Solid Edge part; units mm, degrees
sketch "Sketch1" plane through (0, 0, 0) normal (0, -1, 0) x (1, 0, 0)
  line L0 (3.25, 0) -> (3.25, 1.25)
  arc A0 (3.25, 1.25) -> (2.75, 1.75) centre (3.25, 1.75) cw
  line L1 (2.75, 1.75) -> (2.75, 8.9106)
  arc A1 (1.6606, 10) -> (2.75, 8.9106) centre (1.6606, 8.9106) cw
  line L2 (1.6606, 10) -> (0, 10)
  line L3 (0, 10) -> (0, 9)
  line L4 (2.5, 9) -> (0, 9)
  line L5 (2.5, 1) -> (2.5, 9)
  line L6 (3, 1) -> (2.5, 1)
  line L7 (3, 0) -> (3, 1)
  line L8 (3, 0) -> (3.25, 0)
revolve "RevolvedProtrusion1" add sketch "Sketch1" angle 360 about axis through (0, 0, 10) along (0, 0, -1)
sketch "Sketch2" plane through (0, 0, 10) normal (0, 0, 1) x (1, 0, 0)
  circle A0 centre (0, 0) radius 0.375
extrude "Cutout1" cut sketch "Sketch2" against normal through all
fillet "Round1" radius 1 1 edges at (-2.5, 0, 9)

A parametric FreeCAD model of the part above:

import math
import FreeCAD as App
import Part
import Sketcher
from FreeCAD import Vector


def edges_at(feature, points):
    """Names of the edges that pass closest to the given points."""
    edges = feature.Shape.Edges
    near = lambda p: min(range(len(edges)), key=lambda i: edges[i].distToShape(Part.Vertex(*p))[0])
    return sorted({f"Edge{near(p) + 1}" for p in points})

doc = App.newDocument("Part")
body = doc.addObject("PartDesign::Body", "Body")

sketch1 = body.newObject("Sketcher::SketchObject", "Sketch")
sketch1.AttachmentSupport = (doc.getObject("XZ_Plane"), [""])
sketch1.MapMode = "FlatFace"
sketch1.addGeometry(Part.LineSegment(Vector(3, 0, 0), Vector(3.25, 0, 0)), False)
sketch1.addGeometry(Part.LineSegment(Vector(3.25, 0, 0), Vector(3.25, 1.25, 0)), False)
sketch1.addGeometry(Part.ArcOfCircle(Part.Circle(Vector(3.25, 1.75, 0), Vector(0, 0, 1), 0.5), math.radians(180), math.radians(270)), False)
sketch1.addGeometry(Part.LineSegment(Vector(2.75, 1.75, 0), Vector(2.75, 8.91, 0)), False)
sketch1.addGeometry(Part.ArcOfCircle(Part.Circle(Vector(1.66, 8.91, 0), Vector(0, 0, 1), 1.09), math.radians(0), math.radians(90)), False)
sketch1.addGeometry(Part.LineSegment(Vector(1.66, 10, 0), Vector(0, 10, 0)), False)
sketch1.addGeometry(Part.LineSegment(Vector(0, 10, 0), Vector(0, 9, 0)), False)
sketch1.addGeometry(Part.LineSegment(Vector(0, 9, 0), Vector(2.5, 9, 0)), False)
sketch1.addGeometry(Part.LineSegment(Vector(2.5, 9, 0), Vector(2.5, 1, 0)), False)
sketch1.addGeometry(Part.LineSegment(Vector(2.5, 1, 0), Vector(3, 1, 0)), False)
sketch1.addGeometry(Part.LineSegment(Vector(3, 1, 0), Vector(3, 0, 0)), False)
sketch1.addConstraint(Sketcher.Constraint("Coincident", 0, 2, 1, 1))
sketch1.addConstraint(Sketcher.Constraint("Coincident", 1, 2, 2, 2))
sketch1.addConstraint(Sketcher.Constraint("Tangent", 2, 1, 3, 1))
sketch1.addConstraint(Sketcher.Constraint("Tangent", 3, 2, 4, 1))
sketch1.addConstraint(Sketcher.Constraint("Tangent", 4, 2, 5, 1))
sketch1.addConstraint(Sketcher.Constraint("Coincident", 5, 2, 6, 1))
sketch1.addConstraint(Sketcher.Constraint("Coincident", 6, 2, 7, 1))
sketch1.addConstraint(Sketcher.Constraint("Coincident", 7, 2, 8, 1))
sketch1.addConstraint(Sketcher.Constraint("Coincident", 8, 2, 9, 1))
sketch1.addConstraint(Sketcher.Constraint("Coincident", 9, 2, 10, 1))
sketch1.addConstraint(Sketcher.Constraint("Coincident", 10, 2, 0, 1))
sketch1.addConstraint(Sketcher.Constraint("Horizontal", 0))
sketch1.addConstraint(Sketcher.Constraint("Vertical", 1))
sketch1.addConstraint(Sketcher.Constraint("Vertical", 3))
sketch1.addConstraint(Sketcher.Constraint("Horizontal", 5))
sketch1.addConstraint(Sketcher.Constraint("Vertical", 6))
sketch1.addConstraint(Sketcher.Constraint("Horizontal", 7))
sketch1.addConstraint(Sketcher.Constraint("Vertical", 8))
sketch1.addConstraint(Sketcher.Constraint("Horizontal", 9))
sketch1.addConstraint(Sketcher.Constraint("Vertical", 10))
sketch1.addConstraint(Sketcher.Constraint("PointOnObject", 0, 2, -1))
sketch1.addConstraint(Sketcher.Constraint("PointOnObject", 5, 2, -2))
sketch1.addConstraint(Sketcher.Constraint("Vertical", 2, 3, 0, 2))
sketch1.addConstraint(Sketcher.Constraint("Equal", 6, 10))
sketch1.addConstraint(Sketcher.Constraint("Radius", 2, 0.5))
sketch1.addConstraint(Sketcher.Constraint("DistanceY", 6, 2, 6, 1, 1.0))
sketch1.addConstraint(Sketcher.Constraint("DistanceY", 8, 2, 8, 1, 8.0))
sketch1.addConstraint(Sketcher.Constraint("DistanceX", 7, 1, 7, 2, 2.5))
sketch1.addConstraint(Sketcher.Constraint("DistanceX", 9, 1, 9, 2, 0.5))
sketch1.addConstraint(Sketcher.Constraint("DistanceX", 0, 1, 0, 2, 0.25))
sketch1.addConstraint(Sketcher.Constraint("DistanceY", 1, 1, 1, 2, 1.25))
sketch1.addConstraint(Sketcher.Constraint("Radius", 4, 1.0894))
revolution = body.newObject("PartDesign::Revolution", "Revolution")
revolution.Profile = sketch1
revolution.ReferenceAxis = (sketch1, ["V_Axis"])
revolution.Angle = 360

sketch2 = body.newObject("Sketcher::SketchObject", "Sketch001")
sketch2.AttachmentSupport = (doc.getObject("XY_Plane"), [""])
sketch2.MapMode = "FlatFace"
sketch2.AttachmentOffset = App.Placement(Vector(0, 0, 10), App.Rotation())
sketch2.addGeometry(Part.Circle(Vector(0, 0, 0), Vector(0, 0, 1), 0.38), False)
sketch2.addConstraint(Sketcher.Constraint("Coincident", 0, 3, -1, 1))
sketch2.addConstraint(Sketcher.Constraint("Diameter", 0, 0.75))
pocket1 = body.newObject("PartDesign::Pocket", "Pocket")
pocket1.Profile = sketch2
pocket1.Type = "ThroughAll"
doc.recompute()

fillet = body.newObject("PartDesign::Fillet", "Fillet")
fillet.Base = (pocket1, edges_at(pocket1, [(-2.5, 0, 9)]))
fillet.Radius = 1

doc.recompute()
